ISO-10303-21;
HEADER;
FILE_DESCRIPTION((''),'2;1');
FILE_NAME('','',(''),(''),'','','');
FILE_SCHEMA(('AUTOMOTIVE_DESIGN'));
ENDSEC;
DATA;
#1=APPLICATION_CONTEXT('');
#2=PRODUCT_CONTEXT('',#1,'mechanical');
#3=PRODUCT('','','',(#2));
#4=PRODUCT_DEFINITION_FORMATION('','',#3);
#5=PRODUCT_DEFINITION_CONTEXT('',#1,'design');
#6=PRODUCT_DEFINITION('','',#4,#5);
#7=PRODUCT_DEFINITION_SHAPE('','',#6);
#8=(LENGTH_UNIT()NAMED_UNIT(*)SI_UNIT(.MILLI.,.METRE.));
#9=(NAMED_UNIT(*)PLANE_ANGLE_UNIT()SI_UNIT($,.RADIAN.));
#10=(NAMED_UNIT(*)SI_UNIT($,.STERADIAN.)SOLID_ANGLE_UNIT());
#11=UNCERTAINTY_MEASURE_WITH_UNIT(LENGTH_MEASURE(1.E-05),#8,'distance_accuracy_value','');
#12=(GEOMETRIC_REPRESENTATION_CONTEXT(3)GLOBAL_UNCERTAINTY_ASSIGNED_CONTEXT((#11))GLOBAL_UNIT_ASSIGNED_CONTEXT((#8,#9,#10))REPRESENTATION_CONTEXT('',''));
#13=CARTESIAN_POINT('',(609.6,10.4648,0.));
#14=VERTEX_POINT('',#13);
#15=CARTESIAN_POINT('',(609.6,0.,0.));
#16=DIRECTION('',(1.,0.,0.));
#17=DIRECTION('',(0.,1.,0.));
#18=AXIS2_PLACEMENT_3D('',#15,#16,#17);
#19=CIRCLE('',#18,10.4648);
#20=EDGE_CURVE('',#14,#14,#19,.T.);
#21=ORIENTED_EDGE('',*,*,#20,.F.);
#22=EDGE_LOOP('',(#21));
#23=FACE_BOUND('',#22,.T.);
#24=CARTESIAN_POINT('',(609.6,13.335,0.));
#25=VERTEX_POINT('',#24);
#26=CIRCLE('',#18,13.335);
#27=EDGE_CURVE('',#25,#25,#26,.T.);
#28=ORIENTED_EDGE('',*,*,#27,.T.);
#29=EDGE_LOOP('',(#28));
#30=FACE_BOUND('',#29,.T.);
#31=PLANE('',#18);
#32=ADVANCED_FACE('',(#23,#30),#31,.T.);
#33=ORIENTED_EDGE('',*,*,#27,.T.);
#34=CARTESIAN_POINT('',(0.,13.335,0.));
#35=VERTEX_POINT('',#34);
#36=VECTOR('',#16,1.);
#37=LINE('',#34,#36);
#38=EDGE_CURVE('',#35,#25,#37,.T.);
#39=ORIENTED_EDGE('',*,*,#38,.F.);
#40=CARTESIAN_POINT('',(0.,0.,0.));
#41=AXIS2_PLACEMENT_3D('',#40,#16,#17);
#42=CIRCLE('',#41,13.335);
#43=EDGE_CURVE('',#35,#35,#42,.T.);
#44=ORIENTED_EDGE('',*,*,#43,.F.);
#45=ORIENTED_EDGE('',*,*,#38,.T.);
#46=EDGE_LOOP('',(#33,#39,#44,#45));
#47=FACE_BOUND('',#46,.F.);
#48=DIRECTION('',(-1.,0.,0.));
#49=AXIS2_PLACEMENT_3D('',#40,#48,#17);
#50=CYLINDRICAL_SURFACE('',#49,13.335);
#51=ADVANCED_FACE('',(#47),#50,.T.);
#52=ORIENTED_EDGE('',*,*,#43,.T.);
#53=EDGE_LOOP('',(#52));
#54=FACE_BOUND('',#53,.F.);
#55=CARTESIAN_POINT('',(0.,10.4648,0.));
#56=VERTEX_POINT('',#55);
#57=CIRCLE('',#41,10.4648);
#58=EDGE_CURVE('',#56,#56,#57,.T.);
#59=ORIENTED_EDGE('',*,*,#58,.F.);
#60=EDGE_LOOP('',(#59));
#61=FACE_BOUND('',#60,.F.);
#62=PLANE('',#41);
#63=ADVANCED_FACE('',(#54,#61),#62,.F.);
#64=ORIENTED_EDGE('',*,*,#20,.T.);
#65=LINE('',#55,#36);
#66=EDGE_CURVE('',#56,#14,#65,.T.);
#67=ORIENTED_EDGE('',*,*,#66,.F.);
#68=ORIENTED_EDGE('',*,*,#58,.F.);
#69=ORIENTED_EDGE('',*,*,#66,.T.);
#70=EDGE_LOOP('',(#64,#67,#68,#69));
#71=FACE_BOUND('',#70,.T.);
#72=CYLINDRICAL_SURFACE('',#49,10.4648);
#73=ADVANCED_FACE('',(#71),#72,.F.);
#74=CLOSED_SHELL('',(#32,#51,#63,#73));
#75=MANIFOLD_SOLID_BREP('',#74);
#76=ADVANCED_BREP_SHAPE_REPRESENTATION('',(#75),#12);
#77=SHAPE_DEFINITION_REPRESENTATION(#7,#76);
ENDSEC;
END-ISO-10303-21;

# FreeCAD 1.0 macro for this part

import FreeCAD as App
import Part
import Sketcher
Q = App.Units.Quantity

doc = App.newDocument("Part")
body = doc.addObject("PartDesign::Body", "Body")

# Sketch on YZ plane
sketch1 = body.newObject("Sketcher::SketchObject", "Sketch")
sketch1.AttachmentSupport = (doc.getObject("YZ_Plane"), [""])
sketch1.MapMode = "FlatFace"
sketch1.addGeometry(Part.Circle(App.Vector(0, 0, 0), App.Vector(0, 0, 1), 13), False)
sketch1.addGeometry(Part.Circle(App.Vector(0, 0, 0), App.Vector(0, 0, 1), 10), False)
sketch1.addConstraint(Sketcher.Constraint("Coincident", 0, 3, -1, 1))
sketch1.addConstraint(Sketcher.Constraint("Coincident", 1, 3, -1, 1))
sketch1.addConstraint(Sketcher.Constraint("Diameter", 0, Q("1.05 in")))
sketch1.addConstraint(Sketcher.Constraint("Diameter", 1, Q("0.824 in")))
pad1 = body.newObject("PartDesign::Pad", "Pad")
pad1.Profile = sketch1
pad1.Length = Q("24 in")

doc.recompute()
